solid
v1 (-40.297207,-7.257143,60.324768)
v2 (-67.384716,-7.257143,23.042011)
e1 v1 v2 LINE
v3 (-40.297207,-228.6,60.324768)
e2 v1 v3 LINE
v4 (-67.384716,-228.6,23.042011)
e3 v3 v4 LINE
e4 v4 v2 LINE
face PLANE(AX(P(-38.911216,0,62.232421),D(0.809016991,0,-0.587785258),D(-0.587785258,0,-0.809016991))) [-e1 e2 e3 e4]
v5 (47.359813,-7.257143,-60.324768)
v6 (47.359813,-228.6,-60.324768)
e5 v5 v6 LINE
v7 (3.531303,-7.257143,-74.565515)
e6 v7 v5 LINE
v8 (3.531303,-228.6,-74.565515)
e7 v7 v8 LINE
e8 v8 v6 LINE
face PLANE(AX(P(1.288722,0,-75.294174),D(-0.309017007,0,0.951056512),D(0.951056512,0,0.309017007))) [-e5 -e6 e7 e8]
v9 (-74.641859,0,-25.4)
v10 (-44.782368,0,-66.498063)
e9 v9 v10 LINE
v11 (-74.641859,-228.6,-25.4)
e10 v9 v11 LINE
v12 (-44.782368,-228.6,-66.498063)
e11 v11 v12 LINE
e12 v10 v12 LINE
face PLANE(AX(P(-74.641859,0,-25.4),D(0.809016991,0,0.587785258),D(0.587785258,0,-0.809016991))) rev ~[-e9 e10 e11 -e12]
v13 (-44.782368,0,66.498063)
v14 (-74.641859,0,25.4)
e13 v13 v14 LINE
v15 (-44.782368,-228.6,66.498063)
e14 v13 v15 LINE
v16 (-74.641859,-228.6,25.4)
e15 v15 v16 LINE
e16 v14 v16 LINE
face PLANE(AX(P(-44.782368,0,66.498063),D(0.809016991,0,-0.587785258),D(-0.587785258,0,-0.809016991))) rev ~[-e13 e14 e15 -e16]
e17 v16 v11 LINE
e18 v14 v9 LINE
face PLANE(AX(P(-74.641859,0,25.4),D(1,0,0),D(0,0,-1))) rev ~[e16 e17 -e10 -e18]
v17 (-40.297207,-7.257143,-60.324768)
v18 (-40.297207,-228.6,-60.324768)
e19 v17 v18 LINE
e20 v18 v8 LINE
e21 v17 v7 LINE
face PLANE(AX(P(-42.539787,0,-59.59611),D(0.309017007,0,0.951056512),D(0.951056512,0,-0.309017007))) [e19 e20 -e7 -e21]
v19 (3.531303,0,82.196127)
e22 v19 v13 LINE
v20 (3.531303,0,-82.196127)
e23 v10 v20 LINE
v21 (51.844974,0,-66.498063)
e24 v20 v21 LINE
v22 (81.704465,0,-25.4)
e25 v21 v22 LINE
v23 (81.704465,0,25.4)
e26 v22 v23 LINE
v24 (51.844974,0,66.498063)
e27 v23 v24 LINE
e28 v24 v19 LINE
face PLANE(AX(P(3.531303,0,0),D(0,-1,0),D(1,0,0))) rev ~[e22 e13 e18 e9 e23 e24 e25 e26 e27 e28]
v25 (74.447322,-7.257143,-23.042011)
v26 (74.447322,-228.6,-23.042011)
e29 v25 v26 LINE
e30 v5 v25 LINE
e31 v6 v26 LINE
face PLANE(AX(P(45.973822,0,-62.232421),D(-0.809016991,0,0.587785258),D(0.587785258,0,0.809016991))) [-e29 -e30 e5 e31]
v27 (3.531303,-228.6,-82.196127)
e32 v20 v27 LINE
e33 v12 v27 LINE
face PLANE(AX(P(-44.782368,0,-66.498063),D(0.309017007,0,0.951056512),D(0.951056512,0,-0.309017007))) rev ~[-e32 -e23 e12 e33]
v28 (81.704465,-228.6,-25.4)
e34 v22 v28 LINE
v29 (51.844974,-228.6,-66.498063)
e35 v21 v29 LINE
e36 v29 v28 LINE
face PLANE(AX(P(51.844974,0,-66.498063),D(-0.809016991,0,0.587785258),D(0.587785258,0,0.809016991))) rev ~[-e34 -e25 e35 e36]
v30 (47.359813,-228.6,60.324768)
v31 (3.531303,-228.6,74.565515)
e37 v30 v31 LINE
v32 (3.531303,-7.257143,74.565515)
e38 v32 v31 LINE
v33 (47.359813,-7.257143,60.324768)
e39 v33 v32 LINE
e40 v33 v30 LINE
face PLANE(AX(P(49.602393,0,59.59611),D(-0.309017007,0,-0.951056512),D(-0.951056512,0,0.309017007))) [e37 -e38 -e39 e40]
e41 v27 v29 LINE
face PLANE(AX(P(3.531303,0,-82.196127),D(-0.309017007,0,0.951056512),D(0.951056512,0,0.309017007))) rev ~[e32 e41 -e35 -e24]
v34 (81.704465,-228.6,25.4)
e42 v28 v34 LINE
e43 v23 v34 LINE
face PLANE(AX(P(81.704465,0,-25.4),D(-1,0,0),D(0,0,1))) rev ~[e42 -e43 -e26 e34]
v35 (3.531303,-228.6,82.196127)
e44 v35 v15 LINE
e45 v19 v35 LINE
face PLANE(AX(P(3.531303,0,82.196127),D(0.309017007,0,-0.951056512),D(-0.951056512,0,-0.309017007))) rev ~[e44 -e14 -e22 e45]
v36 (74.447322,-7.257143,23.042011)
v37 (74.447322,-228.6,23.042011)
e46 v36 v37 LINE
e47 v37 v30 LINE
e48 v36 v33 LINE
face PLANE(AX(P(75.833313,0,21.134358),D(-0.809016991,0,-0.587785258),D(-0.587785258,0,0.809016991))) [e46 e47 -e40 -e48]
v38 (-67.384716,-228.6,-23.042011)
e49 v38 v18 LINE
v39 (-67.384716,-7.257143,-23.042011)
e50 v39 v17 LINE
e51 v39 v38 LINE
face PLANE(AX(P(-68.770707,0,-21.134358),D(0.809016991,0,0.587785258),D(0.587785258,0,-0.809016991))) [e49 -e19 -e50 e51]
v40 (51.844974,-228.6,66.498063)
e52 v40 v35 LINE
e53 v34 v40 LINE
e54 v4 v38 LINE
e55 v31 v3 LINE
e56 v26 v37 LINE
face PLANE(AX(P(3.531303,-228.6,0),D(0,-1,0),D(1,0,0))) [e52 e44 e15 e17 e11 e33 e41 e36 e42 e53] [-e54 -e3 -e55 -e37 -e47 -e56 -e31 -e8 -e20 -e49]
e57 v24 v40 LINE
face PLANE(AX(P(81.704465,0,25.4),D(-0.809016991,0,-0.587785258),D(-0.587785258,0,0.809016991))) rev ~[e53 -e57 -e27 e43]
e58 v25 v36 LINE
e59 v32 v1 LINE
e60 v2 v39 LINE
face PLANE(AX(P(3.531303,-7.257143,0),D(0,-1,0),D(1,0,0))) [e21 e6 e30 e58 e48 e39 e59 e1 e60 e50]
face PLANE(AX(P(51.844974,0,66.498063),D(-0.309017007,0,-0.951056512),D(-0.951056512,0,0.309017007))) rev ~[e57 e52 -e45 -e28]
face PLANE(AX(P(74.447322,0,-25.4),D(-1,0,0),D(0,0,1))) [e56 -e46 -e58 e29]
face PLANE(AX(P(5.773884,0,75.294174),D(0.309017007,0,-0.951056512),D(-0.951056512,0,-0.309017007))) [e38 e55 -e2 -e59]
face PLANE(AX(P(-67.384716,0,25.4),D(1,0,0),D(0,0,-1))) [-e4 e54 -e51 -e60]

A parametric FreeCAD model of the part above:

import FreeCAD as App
import Part
import Sketcher

V = App.Vector
Q = App.Units.Quantity


def faces_at(feature, points):
    """Names of the faces that lie closest to the given points."""
    faces = feature.Shape.Faces
    near = lambda p: min(range(len(faces)), key=lambda i: faces[i].distToShape(Part.Vertex(*p))[0])
    return sorted({f"Face{near(p) + 1}" for p in points})


def add_polygon(sketch, points):
    """Adds a closed chain of lines whose ends are joined by coincident constraints."""
    first, n = sketch.GeometryCount, len(points)
    for a, b in zip(points, points[1:] + points[:1]):
        sketch.addGeometry(Part.LineSegment(App.Vector(*a, 0), App.Vector(*b, 0)), False)
    for i in range(n):
        sketch.addConstraint(Sketcher.Constraint("Coincident", first + i, 2, first + (i + 1) % n, 1))

doc = App.newDocument("Part")
params = doc.addObject("Spreadsheet::Sheet", "Params")
for row, (alias, value) in enumerate([
    ("sketch1_height", "2 in"),
    ("sketch1_length", "2 in"),
    ("pad1_length", "9 in"),
    ("thickness_wall", "7.257143 mm"),
], start=1):
    params.set(f"A{row}", alias)
    params.set(f"B{row}", "=" + value)
    params.setAlias(f"B{row}", alias)

body = doc.addObject("PartDesign::Body", "Body")

sketch1 = doc.addObject("Sketcher::SketchObject", "Sketch")
body.addObject(sketch1)
sketch1.AttachmentSupport = (doc.XZ_Plane, [""])
sketch1.MapMode = "FlatFace"
add_polygon(sketch1, [(-74.641859, 25.4), (-74.641859, -25.4), (-44.782368, -66.498063), (3.531303, -82.196127), (51.844974, -66.498063), (81.704465, -25.4), (81.704465, 25.4), (51.844974, 66.498063), (3.531303, 82.196127), (-44.782368, 66.498063)])
sketch1.addConstraint(Sketcher.Constraint("Vertical", 0))
sketch1.addConstraint(Sketcher.Constraint("Vertical", 5))
sketch1.addConstraint(Sketcher.Constraint("Symmetric", 3, 2, 6, 2, -1))
sketch1.addConstraint(Sketcher.Constraint("Symmetric", 2, 2, 7, 2, -1))
sketch1.addConstraint(Sketcher.Constraint("Symmetric", 1, 2, 8, 2, -1))
sketch1.addConstraint(Sketcher.Constraint("Parallel", 1, 6))
sketch1.addConstraint(Sketcher.Constraint("Parallel", 2, 7))
sketch1.addConstraint(Sketcher.Constraint("Parallel", 4, 9))
sketch1.addConstraint(Sketcher.Constraint("Horizontal", 1, 2, 3, 2))
sketch1.addConstraint(Sketcher.Constraint("Horizontal", 0, 2, 4, 2))
sketch1.addConstraint(Sketcher.Constraint("Horizontal", 5, 2, 9, 2))
sketch1.addConstraint(Sketcher.Constraint("Equal", 1, 2))
sketch1.addConstraint(Sketcher.Constraint("DistanceY", 0, 2, 0, 1, Q("2 in")))
sketch1.addConstraint(Sketcher.Constraint("Distance", 1, Q("2 in")))
sketch1.addConstraint(Sketcher.Constraint("Angle", 1, Q("-54 deg")))
sketch1.addConstraint(Sketcher.Constraint("Angle", 2, Q("-18.000001 deg")))
sketch1.addConstraint(Sketcher.Constraint("DistanceX", 0, 2, -1, 1, Q("74.641859 mm")))
sketch1.setExpression("Constraints[22]", "Params.sketch1_height")
sketch1.setExpression("Constraints[23]", "Params.sketch1_length")
pad1 = doc.addObject("PartDesign::Pad", "Pad")
body.addObject(pad1)
pad1.Profile = sketch1
pad1.setExpression("Length", "Params.pad1_length")
doc.recompute()

thickness = doc.addObject("PartDesign::Thickness", "Thickness")
body.addObject(thickness)
thickness.Base = (pad1, faces_at(pad1, [(3.531, -228.6, 0)]))
thickness.setExpression("Value", "Params.thickness_wall")
thickness.Reversed = True
thickness.Join = "Arc"

doc.recompute()
